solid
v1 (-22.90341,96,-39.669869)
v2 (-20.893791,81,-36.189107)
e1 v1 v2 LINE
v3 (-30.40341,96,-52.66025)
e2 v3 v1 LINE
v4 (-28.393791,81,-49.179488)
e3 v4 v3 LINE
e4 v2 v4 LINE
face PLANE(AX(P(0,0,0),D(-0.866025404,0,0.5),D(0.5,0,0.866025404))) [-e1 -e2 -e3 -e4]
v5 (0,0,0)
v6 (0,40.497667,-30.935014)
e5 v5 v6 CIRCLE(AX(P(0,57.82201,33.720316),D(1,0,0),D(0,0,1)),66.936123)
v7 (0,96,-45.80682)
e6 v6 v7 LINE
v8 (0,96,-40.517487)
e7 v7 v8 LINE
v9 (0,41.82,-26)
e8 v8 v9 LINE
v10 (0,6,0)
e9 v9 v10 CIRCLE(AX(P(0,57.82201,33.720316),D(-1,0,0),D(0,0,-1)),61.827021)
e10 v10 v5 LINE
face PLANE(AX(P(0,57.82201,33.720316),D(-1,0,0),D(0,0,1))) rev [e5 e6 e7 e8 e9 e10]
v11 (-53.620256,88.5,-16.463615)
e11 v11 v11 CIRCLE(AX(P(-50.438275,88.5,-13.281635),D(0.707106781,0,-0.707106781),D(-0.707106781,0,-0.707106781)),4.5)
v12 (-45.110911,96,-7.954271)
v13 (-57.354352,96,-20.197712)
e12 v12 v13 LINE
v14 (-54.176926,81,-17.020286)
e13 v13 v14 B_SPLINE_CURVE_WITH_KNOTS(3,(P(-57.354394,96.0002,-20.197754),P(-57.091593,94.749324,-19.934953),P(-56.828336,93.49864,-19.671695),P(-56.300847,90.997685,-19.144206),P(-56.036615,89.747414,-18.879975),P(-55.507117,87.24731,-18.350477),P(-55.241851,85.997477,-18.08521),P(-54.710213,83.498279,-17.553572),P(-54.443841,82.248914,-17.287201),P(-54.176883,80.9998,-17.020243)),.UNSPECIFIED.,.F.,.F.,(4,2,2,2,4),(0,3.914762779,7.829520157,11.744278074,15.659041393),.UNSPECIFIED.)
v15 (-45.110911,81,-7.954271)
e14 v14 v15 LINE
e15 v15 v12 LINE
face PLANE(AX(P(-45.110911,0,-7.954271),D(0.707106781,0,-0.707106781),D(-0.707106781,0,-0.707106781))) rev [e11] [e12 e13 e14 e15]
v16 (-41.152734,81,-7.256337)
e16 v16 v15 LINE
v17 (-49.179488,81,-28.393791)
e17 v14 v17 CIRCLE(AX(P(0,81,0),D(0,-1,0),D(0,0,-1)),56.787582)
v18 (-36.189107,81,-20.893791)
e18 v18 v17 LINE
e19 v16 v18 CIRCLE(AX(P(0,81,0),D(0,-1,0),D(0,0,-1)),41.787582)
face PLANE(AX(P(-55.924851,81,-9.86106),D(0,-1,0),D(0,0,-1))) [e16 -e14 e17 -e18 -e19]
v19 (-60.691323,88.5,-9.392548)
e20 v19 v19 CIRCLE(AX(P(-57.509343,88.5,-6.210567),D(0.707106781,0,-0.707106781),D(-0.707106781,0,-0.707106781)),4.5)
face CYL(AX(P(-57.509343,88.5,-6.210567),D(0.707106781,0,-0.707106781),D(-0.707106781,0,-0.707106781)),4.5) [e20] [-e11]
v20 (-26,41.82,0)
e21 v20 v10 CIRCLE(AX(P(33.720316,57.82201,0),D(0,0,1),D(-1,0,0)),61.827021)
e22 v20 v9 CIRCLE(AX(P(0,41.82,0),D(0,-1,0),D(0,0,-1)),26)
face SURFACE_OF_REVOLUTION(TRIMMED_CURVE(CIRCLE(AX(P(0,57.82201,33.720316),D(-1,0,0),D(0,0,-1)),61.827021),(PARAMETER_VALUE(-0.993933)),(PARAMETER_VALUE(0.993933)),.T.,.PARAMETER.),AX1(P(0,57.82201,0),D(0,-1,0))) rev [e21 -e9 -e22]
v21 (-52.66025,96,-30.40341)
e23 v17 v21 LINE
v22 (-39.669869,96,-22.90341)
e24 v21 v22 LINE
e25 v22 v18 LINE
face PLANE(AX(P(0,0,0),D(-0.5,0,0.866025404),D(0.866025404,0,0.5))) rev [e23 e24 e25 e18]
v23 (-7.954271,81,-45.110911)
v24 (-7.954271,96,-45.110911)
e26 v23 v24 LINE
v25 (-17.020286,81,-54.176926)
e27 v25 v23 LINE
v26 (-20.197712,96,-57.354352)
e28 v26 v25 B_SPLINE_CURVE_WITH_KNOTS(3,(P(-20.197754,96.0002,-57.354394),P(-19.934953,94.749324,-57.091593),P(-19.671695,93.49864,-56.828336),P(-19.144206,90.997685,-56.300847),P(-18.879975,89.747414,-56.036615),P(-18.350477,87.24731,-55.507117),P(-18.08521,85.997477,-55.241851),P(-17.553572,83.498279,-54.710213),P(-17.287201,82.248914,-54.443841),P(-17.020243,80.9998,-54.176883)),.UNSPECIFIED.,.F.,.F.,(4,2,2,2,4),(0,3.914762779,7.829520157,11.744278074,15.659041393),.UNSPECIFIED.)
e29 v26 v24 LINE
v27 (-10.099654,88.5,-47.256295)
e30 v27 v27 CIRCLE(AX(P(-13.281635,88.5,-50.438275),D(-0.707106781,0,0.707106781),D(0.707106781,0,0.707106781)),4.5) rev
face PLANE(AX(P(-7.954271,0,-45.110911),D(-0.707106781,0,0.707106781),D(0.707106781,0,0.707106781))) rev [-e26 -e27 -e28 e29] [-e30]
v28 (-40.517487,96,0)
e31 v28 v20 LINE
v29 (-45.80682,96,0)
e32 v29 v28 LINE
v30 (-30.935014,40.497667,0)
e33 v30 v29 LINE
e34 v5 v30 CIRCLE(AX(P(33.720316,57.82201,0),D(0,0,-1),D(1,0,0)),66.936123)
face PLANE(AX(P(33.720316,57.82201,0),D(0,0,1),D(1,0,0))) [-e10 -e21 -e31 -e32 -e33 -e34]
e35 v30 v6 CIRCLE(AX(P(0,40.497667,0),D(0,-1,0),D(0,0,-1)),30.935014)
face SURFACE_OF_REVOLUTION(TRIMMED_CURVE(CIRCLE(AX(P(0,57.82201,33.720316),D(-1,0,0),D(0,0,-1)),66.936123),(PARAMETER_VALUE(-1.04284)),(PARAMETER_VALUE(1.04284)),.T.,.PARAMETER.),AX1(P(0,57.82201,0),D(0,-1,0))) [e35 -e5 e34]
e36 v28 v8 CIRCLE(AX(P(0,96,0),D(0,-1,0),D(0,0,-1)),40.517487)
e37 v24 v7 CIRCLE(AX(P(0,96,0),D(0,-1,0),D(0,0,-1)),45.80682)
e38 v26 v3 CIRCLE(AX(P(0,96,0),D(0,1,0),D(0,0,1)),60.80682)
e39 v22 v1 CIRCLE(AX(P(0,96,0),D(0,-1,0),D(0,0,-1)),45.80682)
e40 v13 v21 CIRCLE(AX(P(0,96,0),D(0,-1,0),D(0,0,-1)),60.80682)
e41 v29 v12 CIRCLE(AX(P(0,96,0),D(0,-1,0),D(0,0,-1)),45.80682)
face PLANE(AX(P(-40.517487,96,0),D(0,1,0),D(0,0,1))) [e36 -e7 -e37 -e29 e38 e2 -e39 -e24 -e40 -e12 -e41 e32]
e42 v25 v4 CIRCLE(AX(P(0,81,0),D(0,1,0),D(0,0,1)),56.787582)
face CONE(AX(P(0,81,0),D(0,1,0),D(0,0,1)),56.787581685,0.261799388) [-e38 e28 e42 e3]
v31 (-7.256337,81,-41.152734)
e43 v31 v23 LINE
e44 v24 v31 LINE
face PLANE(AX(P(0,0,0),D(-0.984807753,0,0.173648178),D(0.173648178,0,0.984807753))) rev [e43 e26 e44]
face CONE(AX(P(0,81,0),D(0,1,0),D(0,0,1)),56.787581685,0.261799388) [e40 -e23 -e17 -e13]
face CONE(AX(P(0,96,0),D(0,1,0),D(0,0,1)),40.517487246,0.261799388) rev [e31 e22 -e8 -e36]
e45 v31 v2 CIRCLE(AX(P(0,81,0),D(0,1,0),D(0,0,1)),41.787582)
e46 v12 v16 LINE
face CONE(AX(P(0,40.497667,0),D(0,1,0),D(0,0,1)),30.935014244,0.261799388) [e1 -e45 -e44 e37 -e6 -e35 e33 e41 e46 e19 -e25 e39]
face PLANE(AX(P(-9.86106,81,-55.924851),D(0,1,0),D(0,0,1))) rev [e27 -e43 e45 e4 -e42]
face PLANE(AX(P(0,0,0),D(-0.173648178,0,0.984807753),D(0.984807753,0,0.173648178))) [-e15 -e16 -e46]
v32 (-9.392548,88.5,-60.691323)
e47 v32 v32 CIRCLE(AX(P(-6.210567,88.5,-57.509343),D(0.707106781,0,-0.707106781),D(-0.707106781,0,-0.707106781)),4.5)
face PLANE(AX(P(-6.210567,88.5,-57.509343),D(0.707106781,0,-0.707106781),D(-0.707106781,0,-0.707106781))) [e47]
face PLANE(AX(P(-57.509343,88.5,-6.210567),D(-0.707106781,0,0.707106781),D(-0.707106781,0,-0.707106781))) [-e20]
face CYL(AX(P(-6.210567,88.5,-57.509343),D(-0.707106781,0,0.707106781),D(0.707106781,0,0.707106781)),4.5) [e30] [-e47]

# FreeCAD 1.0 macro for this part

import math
import FreeCAD as App
import Part
import Sketcher
from FreeCAD import Vector
Q = App.Units.Quantity

doc = App.newDocument("Part")
body = doc.addObject("PartDesign::Body", "Body")

# Sketch on YZ plane
sketch1 = doc.addObject("Sketcher::SketchObject", "Sketch")
body.addObject(sketch1)
sketch1.AttachmentSupport = (doc.YZ_Plane, [""])
sketch1.MapMode = "FlatFace"
sketch1.addGeometry(Part.LineSegment(Vector(6, 0, 0), Vector(0, 0, 0)), False)
sketch1.addGeometry(Part.ArcOfCircle(Part.Circle(Vector(58, 34, 0), Vector(0, 0, 1), 67), math.radians(-150), math.radians(-105)), False)
sketch1.addGeometry(Part.LineSegment(Vector(40, -31, 0), Vector(96, -46, 0)), False)
sketch1.addGeometry(Part.LineSegment(Vector(96, -46, 0), Vector(96, -41, 0)), False)
sketch1.addGeometry(Part.LineSegment(Vector(96, -41, 0), Vector(42, -26, 0)), False)
sketch1.addGeometry(Part.ArcOfCircle(Part.Circle(Vector(58, 34, 0), Vector(0, 0, 1), 62), math.radians(-147), math.radians(-105)), False)
sketch1.addConstraint(Sketcher.Constraint("Coincident", 0, 2, 1, 1))
sketch1.addConstraint(Sketcher.Constraint("Tangent", 1, 2, 2, 1))
sketch1.addConstraint(Sketcher.Constraint("Coincident", 2, 2, 3, 1))
sketch1.addConstraint(Sketcher.Constraint("Coincident", 3, 2, 4, 1))
sketch1.addConstraint(Sketcher.Constraint("Tangent", 4, 2, 5, 2))
sketch1.addConstraint(Sketcher.Constraint("Coincident", 5, 1, 0, 1))
sketch1.addConstraint(Sketcher.Constraint("Horizontal", 0))
sketch1.addConstraint(Sketcher.Constraint("Vertical", 3))
sketch1.addConstraint(Sketcher.Constraint("Coincident", 0, 2, -1, 1))
sketch1.addConstraint(Sketcher.Constraint("Coincident", 5, 3, 1, 3))
sketch1.addConstraint(Sketcher.Constraint("Parallel", 2, 4))
sketch1.addConstraint(Sketcher.Constraint("DistanceX", 0, 2, 0, 1, Q("6 mm")))
sketch1.addConstraint(Sketcher.Constraint("Angle", 2, Q("-15 deg")))
sketch1.addConstraint(Sketcher.Constraint("DistanceX", -1, 1, 2, 2, Q("96 mm")))
sketch1.addConstraint(Sketcher.Constraint("DistanceY", 4, 2, -1, 1, Q("26 mm")))
sketch1.addConstraint(Sketcher.Constraint("DistanceX", -1, 1, 4, 2, Q("41.82 mm")))
revolution = doc.addObject("PartDesign::Revolution", "Revolution")
body.addObject(revolution)
revolution.Profile = sketch1
revolution.ReferenceAxis = (sketch1, ["H_Axis"])
revolution.Angle = 90

# Sketch on an angled plane
sketch2 = doc.addObject("Sketcher::SketchObject", "Sketch001")
body.addObject(sketch2)
sketch2.Placement = App.Placement(Vector(0, 0, 0), App.Rotation(Vector(0, 1, 0), Vector(0.5, 0, 0.866025404), Vector(0.866025404, 0, -0.5), "ZXY"))
sketch2.addGeometry(Part.LineSegment(Vector(96, -46, 0), Vector(81, -42, 0)), False)
sketch2.addGeometry(Part.LineSegment(Vector(81, -42, 0), Vector(81, -57, 0)), False)
sketch2.addGeometry(Part.LineSegment(Vector(81, -57, 0), Vector(96, -61, 0)), False)
sketch2.addGeometry(Part.LineSegment(Vector(96, -61, 0), Vector(96, -46, 0)), False)
sketch2.addConstraint(Sketcher.Constraint("Coincident", 0, 2, 1, 1))
sketch2.addConstraint(Sketcher.Constraint("Coincident", 1, 2, 2, 1))
sketch2.addConstraint(Sketcher.Constraint("Coincident", 2, 2, 3, 1))
sketch2.addConstraint(Sketcher.Constraint("Coincident", 3, 2, 0, 1))
sketch2.addConstraint(Sketcher.Constraint("Vertical", 1))
sketch2.addConstraint(Sketcher.Constraint("Vertical", 3))
sketch2.addConstraint(Sketcher.Constraint("Parallel", 0, 2))
sketch2.addConstraint(Sketcher.Constraint("DistanceY", 1, 2, 1, 1, Q("15 mm")))
sketch2.addConstraint(Sketcher.Constraint("Angle", 0, Q("165 deg")))
sketch2.addConstraint(Sketcher.Constraint("DistanceX", -1, 1, 0, 2, Q("81 mm")))
sketch2.addConstraint(Sketcher.Constraint("DistanceX", -1, 1, 2, 2, Q("96 mm")))
sketch2.addConstraint(Sketcher.Constraint("DistanceY", 0, 2, -1, 1, Q("41.787582 mm")))
revolution2 = doc.addObject("PartDesign::Revolution", "Revolution001")
body.addObject(revolution2)
revolution2.Profile = sketch2
revolution2.ReferenceAxis = (sketch2, ["H_Axis"])
revolution2.Angle = 20
revolution2.Reversed = True

# Sketch on an angled plane
sketch3 = doc.addObject("Sketcher::SketchObject", "Sketch002")
body.addObject(sketch3)
sketch3.Placement = App.Placement(Vector(0, 0, 0), App.Rotation(Vector(0, 1, 0), Vector(0.866025404, 0, 0.5), Vector(0.5, 0, -0.866025404), "ZXY"))
sketch3.addGeometry(Part.LineSegment(Vector(96, -61, 0), Vector(96, -46, 0)), False)
sketch3.addGeometry(Part.LineSegment(Vector(96, -46, 0), Vector(81, -42, 0)), False)
sketch3.addGeometry(Part.LineSegment(Vector(81, -42, 0), Vector(81, -57, 0)), False)
sketch3.addGeometry(Part.LineSegment(Vector(81, -57, 0), Vector(96, -61, 0)), False)
sketch3.addConstraint(Sketcher.Constraint("Coincident", 0, 2, 1, 1))
sketch3.addConstraint(Sketcher.Constraint("Coincident", 1, 2, 2, 1))
sketch3.addConstraint(Sketcher.Constraint("Coincident", 2, 2, 3, 1))
sketch3.addConstraint(Sketcher.Constraint("Coincident", 3, 2, 0, 1))
sketch3.addConstraint(Sketcher.Constraint("Vertical", 0))
sketch3.addConstraint(Sketcher.Constraint("Vertical", 2))
sketch3.addConstraint(Sketcher.Constraint("Parallel", 1, 3))
sketch3.addConstraint(Sketcher.Constraint("DistanceY", 0, 1, 0, 2, Q("15 mm")))
sketch3.addConstraint(Sketcher.Constraint("Angle", 1, Q("165 deg")))
sketch3.addConstraint(Sketcher.Constraint("DistanceX", -1, 1, 0, 2, Q("96 mm")))
sketch3.addConstraint(Sketcher.Constraint("DistanceX", -1, 1, 1, 2, Q("81 mm")))
sketch3.addConstraint(Sketcher.Constraint("DistanceY", 0, 2, -1, 1, Q("45.80682 mm")))
revolution3 = doc.addObject("PartDesign::Revolution", "Revolution002")
body.addObject(revolution3)
revolution3.Profile = sketch3
revolution3.ReferenceAxis = (sketch3, ["H_Axis"])
revolution3.Angle = 20

# Sketch on XZ plane
sketch4 = doc.addObject("Sketcher::SketchObject", "Sketch003")
body.addObject(sketch4)
sketch4.AttachmentSupport = (doc.XZ_Plane, [""])
sketch4.MapMode = "FlatFace"
sketch4.AttachmentOffset = App.Placement(Vector(0, 0, -96), App.Rotation())
sketch4.addGeometry(Part.LineSegment(Vector(-20, -57, 0), Vector(-8, -45, 0)), False)
sketch4.addGeometry(Part.LineSegment(Vector(-8, -45, 0), Vector(-11, -60, 0)), False)
sketch4.addGeometry(Part.ArcOfCircle(Part.Circle(Vector(0, 0, 0), Vector(0, 0, 1), 61), math.radians(-109.4), math.radians(-100)), False)
sketch4.addGeometry(Part.LineSegment(Vector(-45, -8, 0), Vector(-57, -20, 0)), False)
sketch4.addGeometry(Part.ArcOfCircle(Part.Circle(Vector(0, 0, 0), Vector(0, 0, 1), 61), math.radians(-170), math.radians(-160.6)), False)
sketch4.addGeometry(Part.LineSegment(Vector(-60, -11, 0), Vector(-45, -8, 0)), False)
sketch4.addConstraint(Sketcher.Constraint("Coincident", 0, 2, 1, 1))
sketch4.addConstraint(Sketcher.Constraint("Coincident", 1, 2, 2, 2))
sketch4.addConstraint(Sketcher.Constraint("Coincident", 2, 1, 0, 1))
sketch4.addConstraint(Sketcher.Constraint("Coincident", 3, 2, 4, 2))
sketch4.addConstraint(Sketcher.Constraint("Coincident", 4, 1, 5, 1))
sketch4.addConstraint(Sketcher.Constraint("Coincident", 5, 2, 3, 1))
sketch4.addConstraint(Sketcher.Constraint("Coincident", 2, 3, -1, 1))
sketch4.addConstraint(Sketcher.Constraint("Coincident", 4, 3, -1, 1))
sketch4.addConstraint(Sketcher.Constraint("Equal", 2, 4))
sketch4.addConstraint(Sketcher.Constraint("Parallel", 0, 3))
sketch4.addConstraint(Sketcher.Constraint("Equal", 0, 3))
sketch4.addConstraint(Sketcher.Constraint("Equal", 1, 5))
sketch4.addConstraint(Sketcher.Constraint("Angle", 0, Q("45 deg")))
sketch4.addConstraint(Sketcher.Constraint("Angle", 1, Q("-100 deg")))
sketch4.addConstraint(Sketcher.Constraint("Angle", 5, Q("10 deg")))
sketch4.addConstraint(Sketcher.Constraint("Distance", 1, Q("15 mm")))
sketch4.addConstraint(Sketcher.Constraint("Radius", 2, Q("60.80682 mm")))
sketch4.addConstraint(Sketcher.Constraint("DistanceY", 0, 2, 3, 2, Q("24.913199 mm")))
pocket1 = doc.addObject("PartDesign::Pocket", "Pocket")
body.addObject(pocket1)
pocket1.Profile = sketch4
pocket1.Type = "ThroughAll"
pocket1.Reversed = True

# Sketch on an angled plane
sketch5 = doc.addObject("Sketcher::SketchObject", "Sketch004")
body.addObject(sketch5)
sketch5.Placement = App.Placement(Vector(18.57832, 0, -18.57832), App.Rotation(Vector(-0.707106781, 0, -0.707106781), Vector(0, 0.999999999, 0), Vector(0.707106781, 0, -0.707106781), "ZXY"))
sketch5.addGeometry(Part.Circle(Vector(45.1, 88.5, 0), Vector(0, 0, 1), 4.5), False)
sketch5.addConstraint(Sketcher.Constraint("Diameter", 0, Q("9 mm")))
sketch5.addConstraint(Sketcher.Constraint("DistanceY", -1, 1, 0, 3, Q("88.5 mm")))
sketch5.addConstraint(Sketcher.Constraint("DistanceX", -1, 1, 0, 3, Q("45.05678 mm")))
pad1 = doc.addObject("PartDesign::Pad", "Pad")
body.addObject(pad1)
pad1.Profile = sketch5
pad1.Length = 10
doc.recompute()

datumplane = doc.addObject("PartDesign::Plane", "DatumPlane")
body.addObject(datumplane)
datumplane.Placement = App.Placement(Vector(0, 0, 0), App.Rotation(Vector(0.707106781, 0, 0.707106781), Vector(0, -1, 0), Vector(0.707106781, 0, -0.707106781), "ZXY"))
mirrored = doc.addObject("PartDesign::Mirrored", "Mirrored")
body.addObject(mirrored)
mirrored.Originals = [pad1]
mirrored.MirrorPlane = (datumplane, [""])
body.Tip = mirrored

doc.recompute()
